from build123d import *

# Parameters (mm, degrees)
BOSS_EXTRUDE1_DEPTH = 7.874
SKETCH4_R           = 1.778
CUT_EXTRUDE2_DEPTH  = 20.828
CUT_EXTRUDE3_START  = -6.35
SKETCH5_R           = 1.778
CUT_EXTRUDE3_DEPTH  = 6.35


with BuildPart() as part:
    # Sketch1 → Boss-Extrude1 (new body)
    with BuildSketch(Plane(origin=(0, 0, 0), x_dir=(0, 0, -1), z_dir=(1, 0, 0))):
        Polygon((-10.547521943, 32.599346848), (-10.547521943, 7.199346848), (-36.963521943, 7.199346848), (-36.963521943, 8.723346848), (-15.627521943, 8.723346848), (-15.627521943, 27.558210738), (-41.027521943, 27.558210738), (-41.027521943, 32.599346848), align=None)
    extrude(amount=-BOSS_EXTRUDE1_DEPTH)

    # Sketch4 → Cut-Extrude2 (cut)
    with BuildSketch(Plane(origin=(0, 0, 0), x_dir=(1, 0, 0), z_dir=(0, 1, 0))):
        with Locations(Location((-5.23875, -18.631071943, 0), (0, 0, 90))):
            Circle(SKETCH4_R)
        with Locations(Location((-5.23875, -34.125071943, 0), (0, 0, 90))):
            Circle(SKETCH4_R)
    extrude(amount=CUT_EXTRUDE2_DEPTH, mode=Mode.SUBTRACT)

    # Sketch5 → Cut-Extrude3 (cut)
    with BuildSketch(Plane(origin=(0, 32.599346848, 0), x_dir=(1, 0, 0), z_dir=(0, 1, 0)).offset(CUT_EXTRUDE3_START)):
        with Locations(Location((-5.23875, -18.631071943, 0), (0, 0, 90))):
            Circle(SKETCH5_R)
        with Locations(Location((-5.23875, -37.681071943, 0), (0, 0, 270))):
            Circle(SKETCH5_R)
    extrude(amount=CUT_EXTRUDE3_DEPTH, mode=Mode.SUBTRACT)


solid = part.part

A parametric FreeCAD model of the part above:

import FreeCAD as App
import Part
import Sketcher
from FreeCAD import Vector
Q = App.Units.Quantity


def add_polygon(sketch, points):
    """Adds a closed chain of lines whose ends are joined by coincident constraints."""
    first, n = sketch.GeometryCount, len(points)
    for a, b in zip(points, points[1:] + points[:1]):
        sketch.addGeometry(Part.LineSegment(App.Vector(*a, 0), App.Vector(*b, 0)), False)
    for i in range(n):
        sketch.addConstraint(Sketcher.Constraint("Coincident", first + i, 2, first + (i + 1) % n, 1))

doc = App.newDocument("Part")
body = doc.addObject("PartDesign::Body", "Body")

sketch1 = body.newObject("Sketcher::SketchObject", "Sketch")
sketch1.AttachmentSupport = (doc.getObject("YZ_Plane"), [""])
sketch1.MapMode = "FlatFace"
add_polygon(sketch1, [(7.199347, 10.547522), (32.599347, 10.547522), (32.599347, 41.027522), (27.558211, 41.027522), (27.558211, 15.627522), (8.723347, 15.627522), (8.723347, 36.963522), (7.199347, 36.963522)])
sketch1.addConstraint([
    Sketcher.Constraint("Horizontal", 0),
    Sketcher.Constraint("Vertical", 1),
    Sketcher.Constraint("Horizontal", 2),
    Sketcher.Constraint("Vertical", 3),
    Sketcher.Constraint("Horizontal", 4),
    Sketcher.Constraint("Vertical", 5),
    Sketcher.Constraint("Horizontal", 6),
    Sketcher.Constraint("Vertical", 7),
    Sketcher.Constraint("Equal", 0, 3),
    Sketcher.Constraint("DistanceX", 0, 1, 0, 2, Q("1 in")),
    Sketcher.Constraint("DistanceY", 1, 1, 1, 2, Q("1.2 in")),
    Sketcher.Constraint("DistanceX", 6, 2, 6, 1, Q("0.06 in")),
    Sketcher.Constraint("DistanceY", 5, 1, 5, 2, Q("0.84 in")),
    Sketcher.Constraint("DistanceX", 2, 2, 2, 1, 5.041136),
    Sketcher.Constraint("DistanceY", -1, 1, 0, 2, 10.547522),
    Sketcher.Constraint("DistanceX", -1, 1, 2, 2, 27.558211),
])
pad1 = body.newObject("PartDesign::Pad", "Pad")
pad1.Profile = sketch1
pad1.Length = Q("0.31 in")
pad1.Reversed = True

sketch2 = body.newObject("Sketcher::SketchObject", "Sketch001")
sketch2.AttachmentSupport = (doc.getObject("XZ_Plane"), [""])
sketch2.MapMode = "FlatFace"
sketch2.addGeometry([
    Part.Circle(Vector(-5.23875, 18.631072, 0), Vector(0, 0, 1), 1.778),
    Part.Circle(Vector(-5.23875, 34.125072, 0), Vector(0, 0, 1), 1.778),
], False)
sketch2.addConstraint([
    Sketcher.Constraint("Equal", 0, 1),
    Sketcher.Constraint("Vertical", 0, 3, 1, 3),
    Sketcher.Constraint("Diameter", 0, Q("0.14 in")),
    Sketcher.Constraint("DistanceY", 0, 3, 1, 3, Q("0.61 in")),
    Sketcher.Constraint("DistanceX", 0, 3, -1, 1, 5.23875),
    Sketcher.Constraint("DistanceY", -1, 1, 0, 3, 18.631072),
])
pocket1 = body.newObject("PartDesign::Pocket", "Pocket")
pocket1.Profile = sketch2
pocket1.Length = Q("0.82 in")

sketch3 = body.newObject("Sketcher::SketchObject", "Sketch002")
sketch3.AttachmentSupport = (doc.getObject("XZ_Plane"), [""])
sketch3.MapMode = "FlatFace"
sketch3.AttachmentOffset = App.Placement(Vector(0, 0, -26.249347), App.Rotation())
sketch3.addGeometry([
    Part.Circle(Vector(-5.23875, 18.631072, 0), Vector(0, 0, 1), 1.778),
    Part.Circle(Vector(-5.23875, 37.681072, 0), Vector(0, 0, 1), 1.778),
], False)
sketch3.addConstraint([
    Sketcher.Constraint("Equal", 0, 1),
    Sketcher.Constraint("Vertical", 0, 3, 1, 3),
    Sketcher.Constraint("Diameter", 0, Q("0.14 in")),
    Sketcher.Constraint("DistanceY", 0, 3, 1, 3, Q("0.75 in")),
    Sketcher.Constraint("DistanceX", 0, 3, -1, 1, 5.23875),
    Sketcher.Constraint("DistanceY", -1, 1, 0, 3, 18.631072),
])
pocket2 = body.newObject("PartDesign::Pocket", "Pocket001")
pocket2.Profile = sketch3
pocket2.Length = Q("0.25 in")

doc.recompute()
